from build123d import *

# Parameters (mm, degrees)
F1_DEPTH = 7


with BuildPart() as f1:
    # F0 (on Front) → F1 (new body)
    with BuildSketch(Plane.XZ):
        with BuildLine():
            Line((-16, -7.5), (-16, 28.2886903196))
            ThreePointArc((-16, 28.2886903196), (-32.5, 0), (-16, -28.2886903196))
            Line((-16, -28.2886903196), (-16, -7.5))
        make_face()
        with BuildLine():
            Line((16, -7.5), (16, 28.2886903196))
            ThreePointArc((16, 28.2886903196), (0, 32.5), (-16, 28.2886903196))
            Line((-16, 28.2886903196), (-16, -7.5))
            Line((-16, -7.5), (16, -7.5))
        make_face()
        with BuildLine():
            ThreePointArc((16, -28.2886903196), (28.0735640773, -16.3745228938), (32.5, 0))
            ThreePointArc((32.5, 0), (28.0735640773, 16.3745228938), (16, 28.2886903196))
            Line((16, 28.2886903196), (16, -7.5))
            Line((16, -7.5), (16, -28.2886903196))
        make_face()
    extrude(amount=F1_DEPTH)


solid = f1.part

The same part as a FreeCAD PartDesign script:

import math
import FreeCAD as App
import Part
import Sketcher
from FreeCAD import Vector

doc = App.newDocument("Part")
params = doc.addObject("Spreadsheet::Sheet", "Params")
for row, (alias, value) in enumerate([
    ("sketch1_radius", "32.5 mm"),
    ("sketch1_width", "32 mm"),
    ("pad1_length", "7 mm"),
], start=1):
    params.set(f"A{row}", alias)
    params.set(f"B{row}", "=" + value)
    params.setAlias(f"B{row}", alias)

body = doc.addObject("PartDesign::Body", "Body")

sketch1 = body.newObject("Sketcher::SketchObject", "Sketch")
sketch1.AttachmentSupport = (doc.getObject("XZ_Plane"), [""])
sketch1.MapMode = "FlatFace"
sketch1.addGeometry([
    Part.ArcOfCircle(Part.Circle(Vector(0, 0, 0), Vector(0, 0, 1), 32), math.radians(119), math.radians(241)),
    Part.LineSegment(Vector(-16, -28, 0), Vector(-16, -8, 0)),
    Part.LineSegment(Vector(-16, -8, 0), Vector(16, -8, 0)),
    Part.LineSegment(Vector(16, -8, 0), Vector(16, -28, 0)),
    Part.ArcOfCircle(Part.Circle(Vector(0, 0, 0), Vector(0, 0, 1), 32), math.radians(-61), math.radians(0)),
    Part.ArcOfCircle(Part.Circle(Vector(0, 0, 0), Vector(0, 0, 1), 32), math.radians(0), math.radians(61)),
    Part.ArcOfCircle(Part.Circle(Vector(0, 0, 0), Vector(0, 0, 1), 32), math.radians(61), math.radians(119)),
], False)
sketch1.addConstraint([
    Sketcher.Constraint("Coincident", 0, 2, 1, 1),
    Sketcher.Constraint("Coincident", 1, 2, 2, 1),
    Sketcher.Constraint("Coincident", 2, 2, 3, 1),
    Sketcher.Constraint("Coincident", 3, 2, 4, 1),
    Sketcher.Constraint("Tangent", 4, 2, 5, 1),
    Sketcher.Constraint("Tangent", 5, 2, 6, 1),
    Sketcher.Constraint("Tangent", 6, 2, 0, 1),
    Sketcher.Constraint("Vertical", 1),
    Sketcher.Constraint("Horizontal", 2),
    Sketcher.Constraint("Vertical", 3),
    Sketcher.Constraint("Coincident", 0, 3, -1, 1),
    Sketcher.Constraint("Coincident", 4, 3, -1, 1),
    Sketcher.Constraint("Equal", 0, 4),
    Sketcher.Constraint("PointOnObject", 4, 2, -1),
    Sketcher.Constraint("Horizontal", 0, 2, 3, 2),
    Sketcher.Constraint("Horizontal", 5, 2, 6, 2),
    Sketcher.Constraint("Vertical", 3, 2, 5, 2),
    Sketcher.Constraint("Radius", 0, 32.5),
    Sketcher.Constraint("DistanceX", 2, 1, 2, 2, 32.0),
    Sketcher.Constraint("DistanceY", 1, 2, -1, 1, 7.5),
])
sketch1.setExpression("Constraints[17]", "Params.sketch1_radius")
sketch1.setExpression("Constraints[18]", "Params.sketch1_width")
pad1 = body.newObject("PartDesign::Pad", "Pad")
pad1.Profile = sketch1
pad1.setExpression("Length", "Params.pad1_length")

doc.recompute()
